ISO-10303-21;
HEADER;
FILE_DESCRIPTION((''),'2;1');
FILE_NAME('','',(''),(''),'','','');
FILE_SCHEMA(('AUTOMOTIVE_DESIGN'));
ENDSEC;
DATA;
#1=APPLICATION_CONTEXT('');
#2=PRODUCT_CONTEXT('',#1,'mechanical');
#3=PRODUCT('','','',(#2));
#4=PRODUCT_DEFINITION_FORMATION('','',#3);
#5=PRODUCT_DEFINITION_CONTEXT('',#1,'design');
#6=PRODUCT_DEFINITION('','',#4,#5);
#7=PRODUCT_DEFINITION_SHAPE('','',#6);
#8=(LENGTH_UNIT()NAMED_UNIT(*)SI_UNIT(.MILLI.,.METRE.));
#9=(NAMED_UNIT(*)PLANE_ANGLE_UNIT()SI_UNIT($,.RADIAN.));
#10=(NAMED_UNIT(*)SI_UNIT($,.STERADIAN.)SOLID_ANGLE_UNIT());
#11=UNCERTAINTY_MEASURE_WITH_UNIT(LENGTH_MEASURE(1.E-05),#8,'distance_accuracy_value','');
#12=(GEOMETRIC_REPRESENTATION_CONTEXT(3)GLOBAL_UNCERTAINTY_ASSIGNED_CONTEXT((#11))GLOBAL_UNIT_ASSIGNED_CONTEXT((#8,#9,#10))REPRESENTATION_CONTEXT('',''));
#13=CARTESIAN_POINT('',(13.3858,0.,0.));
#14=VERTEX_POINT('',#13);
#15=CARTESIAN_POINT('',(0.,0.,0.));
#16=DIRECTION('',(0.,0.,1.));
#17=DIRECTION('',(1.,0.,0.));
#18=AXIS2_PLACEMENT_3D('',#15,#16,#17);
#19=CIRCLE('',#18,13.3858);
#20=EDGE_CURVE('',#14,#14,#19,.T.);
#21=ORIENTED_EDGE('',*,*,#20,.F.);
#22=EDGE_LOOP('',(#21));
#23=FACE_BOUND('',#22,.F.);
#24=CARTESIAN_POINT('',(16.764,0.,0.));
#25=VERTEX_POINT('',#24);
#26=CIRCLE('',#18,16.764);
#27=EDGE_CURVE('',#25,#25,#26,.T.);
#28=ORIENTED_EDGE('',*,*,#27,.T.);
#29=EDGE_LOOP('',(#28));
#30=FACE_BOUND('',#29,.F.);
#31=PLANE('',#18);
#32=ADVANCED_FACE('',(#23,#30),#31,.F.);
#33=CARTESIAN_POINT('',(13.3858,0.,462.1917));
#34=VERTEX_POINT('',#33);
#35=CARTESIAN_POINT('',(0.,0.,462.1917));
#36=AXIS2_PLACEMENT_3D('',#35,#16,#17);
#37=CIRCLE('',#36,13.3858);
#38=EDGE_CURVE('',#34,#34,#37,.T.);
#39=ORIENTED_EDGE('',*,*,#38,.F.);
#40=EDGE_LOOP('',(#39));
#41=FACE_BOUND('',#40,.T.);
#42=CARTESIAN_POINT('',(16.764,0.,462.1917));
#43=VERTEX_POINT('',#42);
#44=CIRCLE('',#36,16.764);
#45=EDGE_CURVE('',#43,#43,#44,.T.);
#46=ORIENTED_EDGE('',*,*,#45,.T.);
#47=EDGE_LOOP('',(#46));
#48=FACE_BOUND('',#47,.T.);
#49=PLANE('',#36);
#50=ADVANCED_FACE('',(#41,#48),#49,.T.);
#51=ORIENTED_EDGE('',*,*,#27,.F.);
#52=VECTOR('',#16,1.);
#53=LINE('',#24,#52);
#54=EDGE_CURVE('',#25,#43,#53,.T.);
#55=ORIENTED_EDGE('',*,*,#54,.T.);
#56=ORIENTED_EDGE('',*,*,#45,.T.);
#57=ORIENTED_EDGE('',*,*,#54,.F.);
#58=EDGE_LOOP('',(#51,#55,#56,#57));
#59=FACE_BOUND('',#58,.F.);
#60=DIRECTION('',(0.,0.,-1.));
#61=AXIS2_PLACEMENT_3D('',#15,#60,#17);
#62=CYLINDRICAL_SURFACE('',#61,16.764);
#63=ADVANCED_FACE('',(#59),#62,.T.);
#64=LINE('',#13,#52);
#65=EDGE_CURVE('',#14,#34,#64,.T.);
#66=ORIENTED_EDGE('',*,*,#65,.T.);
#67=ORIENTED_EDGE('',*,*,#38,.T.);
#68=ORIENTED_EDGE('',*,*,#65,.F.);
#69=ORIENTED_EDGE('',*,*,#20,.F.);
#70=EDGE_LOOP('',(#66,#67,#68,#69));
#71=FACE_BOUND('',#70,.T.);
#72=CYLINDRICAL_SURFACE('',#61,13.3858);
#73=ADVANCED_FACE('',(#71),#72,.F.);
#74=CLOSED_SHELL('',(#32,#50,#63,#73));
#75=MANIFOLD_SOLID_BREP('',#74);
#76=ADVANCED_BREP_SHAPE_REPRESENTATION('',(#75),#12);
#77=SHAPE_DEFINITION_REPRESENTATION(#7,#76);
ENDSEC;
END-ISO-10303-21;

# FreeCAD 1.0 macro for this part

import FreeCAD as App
import Part
import Sketcher
Q = App.Units.Quantity

doc = App.newDocument("Part")
params = doc.addObject("Spreadsheet::Sheet", "Params")
for row, (alias, value) in enumerate([
    ("sketch1_diameter", "1.32 in"),
    ("sketch1_diameter2", "1.054 in"),
    ("pad1_length", "462.1917 mm"),
], start=1):
    params.set(f"A{row}", alias)
    params.set(f"B{row}", "=" + value)
    params.setAlias(f"B{row}", alias)

body = doc.addObject("PartDesign::Body", "Body")

# Sketch on XY plane
sketch1 = body.newObject("Sketcher::SketchObject", "Sketch")
sketch1.AttachmentSupport = (doc.getObject("XY_Plane"), [""])
sketch1.MapMode = "FlatFace"
sketch1.addGeometry(Part.Circle(App.Vector(0, 0, 0), App.Vector(0, 0, 1), 17), False)
sketch1.addGeometry(Part.Circle(App.Vector(0, 0, 0), App.Vector(0, 0, 1), 13), False)
sketch1.addConstraint(Sketcher.Constraint("Coincident", 0, 3, -1, 1))
sketch1.addConstraint(Sketcher.Constraint("Coincident", 1, 3, -1, 1))
sketch1.addConstraint(Sketcher.Constraint("Diameter", 0, Q("1.32 in")))
sketch1.addConstraint(Sketcher.Constraint("Diameter", 1, Q("1.054 in")))
sketch1.setExpression("Constraints[2]", "Params.sketch1_diameter")
sketch1.setExpression("Constraints[3]", "Params.sketch1_diameter2")
pad1 = body.newObject("PartDesign::Pad", "Pad")
pad1.Profile = sketch1
pad1.setExpression("Length", "Params.pad1_length")

doc.recompute()
